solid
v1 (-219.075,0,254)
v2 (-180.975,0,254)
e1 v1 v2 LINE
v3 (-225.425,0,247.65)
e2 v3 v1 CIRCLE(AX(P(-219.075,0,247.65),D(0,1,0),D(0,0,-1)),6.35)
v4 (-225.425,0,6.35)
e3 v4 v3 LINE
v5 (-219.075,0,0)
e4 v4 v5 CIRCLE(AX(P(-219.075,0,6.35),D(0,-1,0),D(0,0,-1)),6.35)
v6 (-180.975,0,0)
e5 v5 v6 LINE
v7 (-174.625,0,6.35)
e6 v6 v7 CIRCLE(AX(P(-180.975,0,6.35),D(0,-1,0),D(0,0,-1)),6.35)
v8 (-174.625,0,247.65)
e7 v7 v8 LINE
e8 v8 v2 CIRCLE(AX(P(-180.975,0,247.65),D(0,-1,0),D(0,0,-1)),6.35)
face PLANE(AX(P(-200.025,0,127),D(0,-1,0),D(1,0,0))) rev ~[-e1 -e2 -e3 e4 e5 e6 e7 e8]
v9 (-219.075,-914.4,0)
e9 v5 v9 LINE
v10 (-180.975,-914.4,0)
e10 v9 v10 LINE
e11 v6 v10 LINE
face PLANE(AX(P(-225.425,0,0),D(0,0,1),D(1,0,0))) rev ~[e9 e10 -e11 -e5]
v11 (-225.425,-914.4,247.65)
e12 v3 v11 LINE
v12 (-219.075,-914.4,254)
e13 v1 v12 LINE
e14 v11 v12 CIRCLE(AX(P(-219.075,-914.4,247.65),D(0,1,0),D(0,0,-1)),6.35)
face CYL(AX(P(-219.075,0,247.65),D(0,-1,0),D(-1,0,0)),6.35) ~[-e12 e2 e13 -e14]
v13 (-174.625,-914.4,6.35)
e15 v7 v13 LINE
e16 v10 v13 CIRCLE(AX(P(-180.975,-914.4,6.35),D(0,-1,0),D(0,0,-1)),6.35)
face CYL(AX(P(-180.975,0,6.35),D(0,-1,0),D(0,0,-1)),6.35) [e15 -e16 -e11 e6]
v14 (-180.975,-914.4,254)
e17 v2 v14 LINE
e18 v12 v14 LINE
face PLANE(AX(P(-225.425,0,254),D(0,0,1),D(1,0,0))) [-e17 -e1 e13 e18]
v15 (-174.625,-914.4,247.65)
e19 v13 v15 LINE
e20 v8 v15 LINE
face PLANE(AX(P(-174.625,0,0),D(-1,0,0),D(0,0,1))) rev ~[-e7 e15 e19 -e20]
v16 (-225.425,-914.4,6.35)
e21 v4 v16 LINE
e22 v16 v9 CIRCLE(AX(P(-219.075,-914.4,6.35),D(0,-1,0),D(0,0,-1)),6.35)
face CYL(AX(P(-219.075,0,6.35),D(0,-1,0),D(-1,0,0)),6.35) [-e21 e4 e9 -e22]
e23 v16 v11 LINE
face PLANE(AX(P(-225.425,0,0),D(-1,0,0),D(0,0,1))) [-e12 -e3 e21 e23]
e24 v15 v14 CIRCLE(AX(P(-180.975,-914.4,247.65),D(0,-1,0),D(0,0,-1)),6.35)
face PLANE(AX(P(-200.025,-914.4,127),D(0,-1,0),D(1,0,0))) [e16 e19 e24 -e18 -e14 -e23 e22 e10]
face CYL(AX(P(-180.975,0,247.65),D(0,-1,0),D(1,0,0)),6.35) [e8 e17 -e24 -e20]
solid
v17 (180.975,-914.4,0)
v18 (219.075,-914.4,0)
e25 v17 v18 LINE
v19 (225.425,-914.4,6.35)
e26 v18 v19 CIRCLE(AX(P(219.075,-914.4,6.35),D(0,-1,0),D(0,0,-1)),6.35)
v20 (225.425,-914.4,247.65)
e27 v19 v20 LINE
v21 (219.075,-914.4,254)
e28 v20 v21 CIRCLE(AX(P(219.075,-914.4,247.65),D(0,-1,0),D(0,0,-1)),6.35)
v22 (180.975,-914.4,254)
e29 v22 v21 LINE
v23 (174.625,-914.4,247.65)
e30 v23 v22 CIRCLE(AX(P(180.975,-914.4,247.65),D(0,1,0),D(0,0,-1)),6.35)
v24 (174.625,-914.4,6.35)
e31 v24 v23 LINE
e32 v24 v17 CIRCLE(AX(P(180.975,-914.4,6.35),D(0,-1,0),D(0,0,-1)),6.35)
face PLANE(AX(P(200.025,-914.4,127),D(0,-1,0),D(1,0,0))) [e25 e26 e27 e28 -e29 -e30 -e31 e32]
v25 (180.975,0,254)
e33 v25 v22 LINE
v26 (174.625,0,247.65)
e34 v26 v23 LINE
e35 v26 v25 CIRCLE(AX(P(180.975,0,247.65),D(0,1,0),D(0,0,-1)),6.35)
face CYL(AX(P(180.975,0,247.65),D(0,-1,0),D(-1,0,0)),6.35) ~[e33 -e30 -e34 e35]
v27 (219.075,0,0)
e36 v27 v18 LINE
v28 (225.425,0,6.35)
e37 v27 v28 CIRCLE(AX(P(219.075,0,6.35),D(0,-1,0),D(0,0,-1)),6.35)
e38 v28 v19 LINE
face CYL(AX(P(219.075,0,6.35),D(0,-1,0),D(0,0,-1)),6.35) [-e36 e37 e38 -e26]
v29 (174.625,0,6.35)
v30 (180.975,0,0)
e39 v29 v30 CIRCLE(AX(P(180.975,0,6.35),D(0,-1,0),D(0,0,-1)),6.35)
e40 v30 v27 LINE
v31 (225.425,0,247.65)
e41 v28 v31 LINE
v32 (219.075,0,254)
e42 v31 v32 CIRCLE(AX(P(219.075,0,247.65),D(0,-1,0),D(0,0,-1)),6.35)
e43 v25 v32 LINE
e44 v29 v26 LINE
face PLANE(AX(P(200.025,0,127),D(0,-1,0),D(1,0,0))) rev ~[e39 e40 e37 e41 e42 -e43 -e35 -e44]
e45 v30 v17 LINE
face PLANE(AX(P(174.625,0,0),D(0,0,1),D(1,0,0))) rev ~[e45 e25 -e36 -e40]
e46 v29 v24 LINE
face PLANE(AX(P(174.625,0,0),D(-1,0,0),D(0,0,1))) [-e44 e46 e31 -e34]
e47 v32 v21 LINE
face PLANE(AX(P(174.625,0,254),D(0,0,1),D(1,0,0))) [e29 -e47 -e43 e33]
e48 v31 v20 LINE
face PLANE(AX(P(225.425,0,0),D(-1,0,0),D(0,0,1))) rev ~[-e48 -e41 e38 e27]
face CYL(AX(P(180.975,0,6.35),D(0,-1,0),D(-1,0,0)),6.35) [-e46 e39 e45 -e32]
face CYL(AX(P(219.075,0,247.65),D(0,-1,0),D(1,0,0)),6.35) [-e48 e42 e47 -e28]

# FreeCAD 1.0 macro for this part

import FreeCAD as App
import Part
import Sketcher
Q = App.Units.Quantity


def edges_at(feature, points):
    """Names of the edges that pass closest to the given points."""
    edges = feature.Shape.Edges
    near = lambda p: min(range(len(edges)), key=lambda i: edges[i].distToShape(Part.Vertex(*p))[0])
    return sorted({f"Edge{near(p) + 1}" for p in points})

doc = App.newDocument("Part")
body = doc.addObject("PartDesign::Body", "Body")
body.AllowCompound = True

# Sketch on XZ plane
sketch1 = doc.addObject("Sketcher::SketchObject", "Sketch")
body.addObject(sketch1)
sketch1.AttachmentSupport = (doc.XZ_Plane, [""])
sketch1.MapMode = "FlatFace"
sketch1.addGeometry(Part.LineSegment(App.Vector(-225.425, 254, 0), App.Vector(-225.425, 0, 0)), False)
sketch1.addGeometry(Part.LineSegment(App.Vector(-225.425, 0, 0), App.Vector(-174.625, 0, 0)), False)
sketch1.addGeometry(Part.LineSegment(App.Vector(-174.625, 0, 0), App.Vector(-174.625, 254, 0)), False)
sketch1.addGeometry(Part.LineSegment(App.Vector(-174.625, 254, 0), App.Vector(-225.425, 254, 0)), False)
sketch1.addGeometry(Part.LineSegment(App.Vector(174.625, 254, 0), App.Vector(174.625, 0, 0)), False)
sketch1.addGeometry(Part.LineSegment(App.Vector(174.625, 0, 0), App.Vector(225.425, 0, 0)), False)
sketch1.addGeometry(Part.LineSegment(App.Vector(225.425, 0, 0), App.Vector(225.425, 254, 0)), False)
sketch1.addGeometry(Part.LineSegment(App.Vector(225.425, 254, 0), App.Vector(174.625, 254, 0)), False)
sketch1.addConstraint(Sketcher.Constraint("Coincident", 0, 2, 1, 1))
sketch1.addConstraint(Sketcher.Constraint("Coincident", 1, 2, 2, 1))
sketch1.addConstraint(Sketcher.Constraint("Coincident", 2, 2, 3, 1))
sketch1.addConstraint(Sketcher.Constraint("Coincident", 3, 2, 0, 1))
sketch1.addConstraint(Sketcher.Constraint("Coincident", 4, 2, 5, 1))
sketch1.addConstraint(Sketcher.Constraint("Coincident", 5, 2, 6, 1))
sketch1.addConstraint(Sketcher.Constraint("Coincident", 6, 2, 7, 1))
sketch1.addConstraint(Sketcher.Constraint("Coincident", 7, 2, 4, 1))
sketch1.addConstraint(Sketcher.Constraint("Vertical", 0))
sketch1.addConstraint(Sketcher.Constraint("Horizontal", 1))
sketch1.addConstraint(Sketcher.Constraint("Vertical", 2))
sketch1.addConstraint(Sketcher.Constraint("Horizontal", 3))
sketch1.addConstraint(Sketcher.Constraint("Vertical", 4))
sketch1.addConstraint(Sketcher.Constraint("Horizontal", 5))
sketch1.addConstraint(Sketcher.Constraint("Vertical", 6))
sketch1.addConstraint(Sketcher.Constraint("Horizontal", 7))
sketch1.addConstraint(Sketcher.Constraint("Symmetric", 1, 2, 4, 2, -1, 1))
sketch1.addConstraint(Sketcher.Constraint("Symmetric", 0, 2, 5, 2, -2))
sketch1.addConstraint(Sketcher.Constraint("Horizontal", 3, 2, 6, 2))
sketch1.addConstraint(Sketcher.Constraint("DistanceX", 1, 1, 1, 2, Q("2 in")))
sketch1.addConstraint(Sketcher.Constraint("DistanceY", 0, 2, 0, 1, Q("10 in")))
sketch1.addConstraint(Sketcher.Constraint("DistanceX", 1, 2, 4, 2, Q("13.75 in")))
pad1 = doc.addObject("PartDesign::Pad", "Pad")
body.addObject(pad1)
pad1.Profile = sketch1
pad1.Length = Q("36 in")
doc.recompute()

fillet = doc.addObject("PartDesign::Fillet", "Fillet")
body.addObject(fillet)
fillet.Base = (pad1, edges_at(pad1, [
    (-174.625, -457.2, 254),
    (-225.425, -457.2, 254),
    (-174.625, -457.2, 0),
    (-225.425, -457.2, 0),
    (174.625, -457.2, 254),
    (225.425, -457.2, 254),
    (225.425, -457.2, 0),
    (174.625, -457.2, 0),
]))
fillet.Radius = Q("0.25 in")

doc.recompute()
